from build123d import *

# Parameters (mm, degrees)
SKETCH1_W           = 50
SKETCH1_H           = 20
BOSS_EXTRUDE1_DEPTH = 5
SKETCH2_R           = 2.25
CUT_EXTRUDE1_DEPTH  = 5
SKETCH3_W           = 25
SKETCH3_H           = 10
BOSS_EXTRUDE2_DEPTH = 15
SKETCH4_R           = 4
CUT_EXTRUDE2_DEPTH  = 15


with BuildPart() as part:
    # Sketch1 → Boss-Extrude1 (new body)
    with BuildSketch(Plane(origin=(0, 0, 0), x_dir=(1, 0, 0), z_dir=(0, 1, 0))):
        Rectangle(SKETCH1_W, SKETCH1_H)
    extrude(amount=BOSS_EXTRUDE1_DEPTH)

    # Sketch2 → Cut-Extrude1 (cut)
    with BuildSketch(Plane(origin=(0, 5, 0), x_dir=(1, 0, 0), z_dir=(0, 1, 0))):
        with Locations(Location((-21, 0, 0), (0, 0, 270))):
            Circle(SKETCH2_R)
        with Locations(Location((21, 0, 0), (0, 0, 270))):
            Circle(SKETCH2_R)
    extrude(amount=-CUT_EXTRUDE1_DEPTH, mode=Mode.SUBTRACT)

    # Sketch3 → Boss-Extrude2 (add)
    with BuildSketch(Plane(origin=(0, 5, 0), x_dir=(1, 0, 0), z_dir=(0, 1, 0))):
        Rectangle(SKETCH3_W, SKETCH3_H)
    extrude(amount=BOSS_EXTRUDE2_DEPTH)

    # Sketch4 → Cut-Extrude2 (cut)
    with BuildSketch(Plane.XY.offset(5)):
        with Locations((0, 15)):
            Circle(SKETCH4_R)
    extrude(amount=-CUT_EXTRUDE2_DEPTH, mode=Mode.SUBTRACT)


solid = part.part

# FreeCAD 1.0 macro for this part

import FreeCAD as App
import Part
import Sketcher

V = App.Vector
Q = App.Units.Quantity


def add_polygon(sketch, points):
    """Adds a closed chain of lines whose ends are joined by coincident constraints."""
    first, n = sketch.GeometryCount, len(points)
    for a, b in zip(points, points[1:] + points[:1]):
        sketch.addGeometry(Part.LineSegment(App.Vector(*a, 0), App.Vector(*b, 0)), False)
    for i in range(n):
        sketch.addConstraint(Sketcher.Constraint("Coincident", first + i, 2, first + (i + 1) % n, 1))

doc = App.newDocument("Part")
body = doc.addObject("PartDesign::Body", "Body")

# Sketch on XZ plane
sketch1 = body.newObject("Sketcher::SketchObject", "Sketch")
sketch1.AttachmentSupport = (doc.getObject("XZ_Plane"), [""])
sketch1.MapMode = "FlatFace"
add_polygon(sketch1, [(-25, -10), (-25, 10), (25, 10), (25, -10)])  # lines 0-3
sketch1.addConstraint(Sketcher.Constraint("Vertical", 0))
sketch1.addConstraint(Sketcher.Constraint("Horizontal", 1))
sketch1.addConstraint(Sketcher.Constraint("Vertical", 2))
sketch1.addConstraint(Sketcher.Constraint("Horizontal", 3))
sketch1.addConstraint(Sketcher.Constraint("Symmetric", 0, 2, 2, 2, -1, 1))
sketch1.addConstraint(Sketcher.Constraint("DistanceX", 1, 1, 1, 2, Q("50 mm")))
sketch1.addConstraint(Sketcher.Constraint("DistanceY", 0, 1, 0, 2, Q("20 mm")))
pad1 = body.newObject("PartDesign::Pad", "Pad")
pad1.Profile = sketch1
pad1.Length = 5
pad1.Reversed = True

# Sketch on XZ plane
sketch2 = body.newObject("Sketcher::SketchObject", "Sketch001")
sketch2.AttachmentSupport = (doc.getObject("XZ_Plane"), [""])
sketch2.MapMode = "FlatFace"
sketch2.AttachmentOffset = App.Placement(V(0, 0, -5), App.Rotation())
sketch2.addGeometry(Part.Circle(V(-21, 0, 0), V(0, 0, 1), 2.2), False)
sketch2.addGeometry(Part.Circle(V(21, 0, 0), V(0, 0, 1), 2.2), False)
sketch2.addConstraint(Sketcher.Constraint("Equal", 0, 1))
sketch2.addConstraint(Sketcher.Constraint("Symmetric", 0, 3, 1, 3, -1, 1))
sketch2.addConstraint(Sketcher.Constraint("PointOnObject", 0, 3, -1))
sketch2.addConstraint(Sketcher.Constraint("Diameter", 0, Q("4.5 mm")))
sketch2.addConstraint(Sketcher.Constraint("DistanceX", 0, 3, -1, 1, Q("21 mm")))
pocket1 = body.newObject("PartDesign::Pocket", "Pocket")
pocket1.Profile = sketch2
pocket1.Length = 5
pocket1.Reversed = True

# Sketch on XZ plane
sketch3 = body.newObject("Sketcher::SketchObject", "Sketch002")
sketch3.AttachmentSupport = (doc.getObject("XZ_Plane"), [""])
sketch3.MapMode = "FlatFace"
sketch3.AttachmentOffset = App.Placement(V(0, 0, -5), App.Rotation())
add_polygon(sketch3, [(-12, -5), (-12, 5), (12, 5), (12, -5)])  # lines 0-3
sketch3.addConstraint(Sketcher.Constraint("Vertical", 0))
sketch3.addConstraint(Sketcher.Constraint("Horizontal", 1))
sketch3.addConstraint(Sketcher.Constraint("Vertical", 2))
sketch3.addConstraint(Sketcher.Constraint("Horizontal", 3))
sketch3.addConstraint(Sketcher.Constraint("Symmetric", 0, 2, 2, 2, -1, 1))
sketch3.addConstraint(Sketcher.Constraint("DistanceX", 1, 1, 1, 2, Q("25 mm")))
sketch3.addConstraint(Sketcher.Constraint("DistanceY", 0, 1, 0, 2, Q("10 mm")))
pad2 = body.newObject("PartDesign::Pad", "Pad001")
pad2.Profile = sketch3
pad2.Length = 15
pad2.Reversed = True

# Sketch on XY plane
sketch4 = body.newObject("Sketcher::SketchObject", "Sketch003")
sketch4.AttachmentSupport = (doc.getObject("XY_Plane"), [""])
sketch4.MapMode = "FlatFace"
sketch4.AttachmentOffset = App.Placement(V(0, 0, 5), App.Rotation())
sketch4.addGeometry(Part.Circle(V(0, 15, 0), V(0, 0, 1), 4), False)
sketch4.addConstraint(Sketcher.Constraint("PointOnObject", 0, 3, -2))
sketch4.addConstraint(Sketcher.Constraint("Diameter", 0, Q("8 mm")))
sketch4.addConstraint(Sketcher.Constraint("DistanceY", -1, 1, 0, 3, Q("15 mm")))
pocket2 = body.newObject("PartDesign::Pocket", "Pocket001")
pocket2.Profile = sketch4
pocket2.Length = 15

doc.recompute()
